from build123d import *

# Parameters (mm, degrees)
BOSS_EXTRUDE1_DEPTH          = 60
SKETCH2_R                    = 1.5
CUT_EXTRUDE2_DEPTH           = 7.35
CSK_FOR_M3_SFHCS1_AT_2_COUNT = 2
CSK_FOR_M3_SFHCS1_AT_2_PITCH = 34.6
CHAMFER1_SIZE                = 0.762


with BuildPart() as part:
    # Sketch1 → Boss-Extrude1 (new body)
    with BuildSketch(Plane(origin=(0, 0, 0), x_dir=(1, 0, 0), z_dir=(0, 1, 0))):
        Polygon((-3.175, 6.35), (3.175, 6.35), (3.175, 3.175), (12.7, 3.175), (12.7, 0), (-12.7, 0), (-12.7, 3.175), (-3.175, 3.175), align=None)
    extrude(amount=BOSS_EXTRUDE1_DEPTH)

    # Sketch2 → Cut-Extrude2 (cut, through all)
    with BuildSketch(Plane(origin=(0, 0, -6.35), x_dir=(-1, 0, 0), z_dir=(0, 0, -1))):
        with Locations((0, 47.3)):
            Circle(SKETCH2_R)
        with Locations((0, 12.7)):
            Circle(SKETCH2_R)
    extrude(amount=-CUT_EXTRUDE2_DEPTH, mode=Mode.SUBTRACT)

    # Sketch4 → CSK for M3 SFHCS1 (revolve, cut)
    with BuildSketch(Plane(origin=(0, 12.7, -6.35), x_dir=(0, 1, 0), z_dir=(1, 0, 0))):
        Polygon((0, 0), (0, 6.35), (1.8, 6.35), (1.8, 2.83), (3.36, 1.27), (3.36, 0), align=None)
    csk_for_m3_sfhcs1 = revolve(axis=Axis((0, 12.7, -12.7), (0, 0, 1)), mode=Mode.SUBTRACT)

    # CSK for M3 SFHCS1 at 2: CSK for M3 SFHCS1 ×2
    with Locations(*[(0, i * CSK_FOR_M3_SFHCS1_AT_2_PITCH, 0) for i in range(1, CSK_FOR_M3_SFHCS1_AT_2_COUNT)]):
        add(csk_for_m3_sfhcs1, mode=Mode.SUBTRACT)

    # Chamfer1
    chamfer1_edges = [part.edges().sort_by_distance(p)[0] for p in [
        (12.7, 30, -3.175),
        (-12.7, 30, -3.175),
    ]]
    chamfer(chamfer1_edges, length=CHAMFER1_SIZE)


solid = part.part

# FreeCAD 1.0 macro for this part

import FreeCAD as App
import Part
import Sketcher

V = App.Vector
Q = App.Units.Quantity


def edges_at(feature, points):
    """Names of the edges that pass closest to the given points."""
    edges = feature.Shape.Edges
    near = lambda p: min(range(len(edges)), key=lambda i: edges[i].distToShape(Part.Vertex(*p))[0])
    return sorted({f"Edge{near(p) + 1}" for p in points})


def add_polygon(sketch, points):
    """Adds a closed chain of lines whose ends are joined by coincident constraints."""
    first, n = sketch.GeometryCount, len(points)
    for a, b in zip(points, points[1:] + points[:1]):
        sketch.addGeometry(Part.LineSegment(App.Vector(*a, 0), App.Vector(*b, 0)), False)
    for i in range(n):
        sketch.addConstraint(Sketcher.Constraint("Coincident", first + i, 2, first + (i + 1) % n, 1))

doc = App.newDocument("Part")
body = doc.addObject("PartDesign::Body", "Body")

# Sketch on XZ plane
sketch1 = doc.addObject("Sketcher::SketchObject", "Sketch")
body.addObject(sketch1)
sketch1.AttachmentSupport = (doc.XZ_Plane, [""])
sketch1.MapMode = "FlatFace"
add_polygon(sketch1, [(3.2, -6.3), (-3.2, -6.3), (-3.2, -3.2), (-12.7, -3.2), (-12.7, 0), (12.7, 0), (12.7, -3.2), (3.2, -3.2)])  # lines 0-7
sketch1.addConstraint([
    Sketcher.Constraint("Horizontal", 0),
    Sketcher.Constraint("Vertical", 1),
    Sketcher.Constraint("Horizontal", 2),
    Sketcher.Constraint("Vertical", 3),
    Sketcher.Constraint("Horizontal", 4),
    Sketcher.Constraint("Vertical", 5),
    Sketcher.Constraint("Horizontal", 6),
    Sketcher.Constraint("Vertical", 7),
    Sketcher.Constraint("Symmetric", 3, 2, 4, 2, -1, 1),
    Sketcher.Constraint("Symmetric", 1, 2, 6, 2, -2),
    Sketcher.Constraint("Equal", 1, 3),
    Sketcher.Constraint("DistanceX", 4, 1, 4, 2, Q("1 in")),
    Sketcher.Constraint("DistanceX", 0, 2, 0, 1, Q("0.25 in")),
    Sketcher.Constraint("DistanceY", 1, 1, 1, 2, Q("0.125 in")),
])
pad1 = doc.addObject("PartDesign::Pad", "Pad")
body.addObject(pad1)
pad1.Profile = sketch1
pad1.Length = 60
pad1.Reversed = True

# Sketch on XY plane
sketch2 = doc.addObject("Sketcher::SketchObject", "Sketch001")
body.addObject(sketch2)
sketch2.AttachmentSupport = (doc.XY_Plane, [""])
sketch2.MapMode = "FlatFace"
sketch2.AttachmentOffset = App.Placement(V(0, 0, -0.25 * 25.4), App.Rotation())
sketch2.addGeometry([
    Part.Circle(V(0, 47.3, 0), V(0, 0, 1), 1.5),
    Part.Circle(V(0, 12.7, 0), V(0, 0, 1), 1.5),
], False)
sketch2.addConstraint([
    Sketcher.Constraint("Equal", 0, 1),
    Sketcher.Constraint("PointOnObject", 0, 3, -2),
    Sketcher.Constraint("PointOnObject", 1, 3, -2),
    Sketcher.Constraint("DistanceY", -1, 1, 1, 3, Q("0.5 in")),
    Sketcher.Constraint("Diameter", 0, 3.0),
    Sketcher.Constraint("DistanceY", -1, 1, 0, 3, 47.3),
])
pocket1 = doc.addObject("PartDesign::Pocket", "Pocket")
body.addObject(pocket1)
pocket1.Profile = sketch2
pocket1.Type = "ThroughAll"
pocket1.Reversed = True

# Sketch on YZ plane
sketch3 = doc.addObject("Sketcher::SketchObject", "Sketch002")
body.addObject(sketch3)
sketch3.AttachmentSupport = (doc.YZ_Plane, [""])
sketch3.MapMode = "FlatFace"
add_polygon(sketch3, [(12.7, 0), (12.7, -6.3), (16.1, -6.3), (16.1, -5.1), (14.5, -3.5), (14.5, 0)])  # lines 0-5
sketch3.addGeometry(Part.LineSegment(V(12.7, -6.3, 0), V(12.7, 0, 0)), True)  # axis
sketch3.addConstraint([
    Sketcher.Constraint("Vertical", 0),
    Sketcher.Constraint("Horizontal", 1),
    Sketcher.Constraint("Vertical", 2),
    Sketcher.Constraint("Vertical", 4),
    Sketcher.Constraint("Horizontal", 5),
    Sketcher.Constraint("Vertical", 6),
    Sketcher.Constraint("Coincident", 6, 1, 0, 2),
    Sketcher.Constraint("PointOnObject", 4, 2, -1),
    Sketcher.Constraint("PointOnObject", 6, 2, -1),
    Sketcher.Constraint("Angle", 3, Q("135 deg")),
    Sketcher.Constraint("DistanceY", 0, 2, 0, 1, Q("0.25 in")),
    Sketcher.Constraint("DistanceY", 2, 1, 2, 2, Q("0.05 in")),
    Sketcher.Constraint("DistanceX", -1, 1, 0, 2, Q("0.5 in")),
    Sketcher.Constraint("DistanceX", 1, 1, 1, 2, 3.36),
    Sketcher.Constraint("DistanceX", 5, 2, 5, 1, 1.8),
])
groove = doc.addObject("PartDesign::Groove", "Groove")
body.addObject(groove)
groove.Profile = sketch3
groove.ReferenceAxis = (sketch3, ["Axis0"])
groove.Angle = 360
doc.recompute()

linearpattern = doc.addObject("PartDesign::LinearPattern", "LinearPattern")
body.addObject(linearpattern)
linearpattern.Originals = [groove]
linearpattern.Direction = (doc.Y_Axis, [""])
linearpattern.Mode = "offset"
linearpattern.Offset = 34.6
linearpattern.Occurrences = 2
body.Tip = linearpattern
doc.recompute()

chamfer = doc.addObject("PartDesign::Chamfer", "Chamfer")
body.addObject(chamfer)
chamfer.Base = (linearpattern, edges_at(linearpattern, [(12.7, 30, -3.175), (-12.7, 30, -3.175)]))
chamfer.Size = Q("0.03 in")

doc.recompute()
